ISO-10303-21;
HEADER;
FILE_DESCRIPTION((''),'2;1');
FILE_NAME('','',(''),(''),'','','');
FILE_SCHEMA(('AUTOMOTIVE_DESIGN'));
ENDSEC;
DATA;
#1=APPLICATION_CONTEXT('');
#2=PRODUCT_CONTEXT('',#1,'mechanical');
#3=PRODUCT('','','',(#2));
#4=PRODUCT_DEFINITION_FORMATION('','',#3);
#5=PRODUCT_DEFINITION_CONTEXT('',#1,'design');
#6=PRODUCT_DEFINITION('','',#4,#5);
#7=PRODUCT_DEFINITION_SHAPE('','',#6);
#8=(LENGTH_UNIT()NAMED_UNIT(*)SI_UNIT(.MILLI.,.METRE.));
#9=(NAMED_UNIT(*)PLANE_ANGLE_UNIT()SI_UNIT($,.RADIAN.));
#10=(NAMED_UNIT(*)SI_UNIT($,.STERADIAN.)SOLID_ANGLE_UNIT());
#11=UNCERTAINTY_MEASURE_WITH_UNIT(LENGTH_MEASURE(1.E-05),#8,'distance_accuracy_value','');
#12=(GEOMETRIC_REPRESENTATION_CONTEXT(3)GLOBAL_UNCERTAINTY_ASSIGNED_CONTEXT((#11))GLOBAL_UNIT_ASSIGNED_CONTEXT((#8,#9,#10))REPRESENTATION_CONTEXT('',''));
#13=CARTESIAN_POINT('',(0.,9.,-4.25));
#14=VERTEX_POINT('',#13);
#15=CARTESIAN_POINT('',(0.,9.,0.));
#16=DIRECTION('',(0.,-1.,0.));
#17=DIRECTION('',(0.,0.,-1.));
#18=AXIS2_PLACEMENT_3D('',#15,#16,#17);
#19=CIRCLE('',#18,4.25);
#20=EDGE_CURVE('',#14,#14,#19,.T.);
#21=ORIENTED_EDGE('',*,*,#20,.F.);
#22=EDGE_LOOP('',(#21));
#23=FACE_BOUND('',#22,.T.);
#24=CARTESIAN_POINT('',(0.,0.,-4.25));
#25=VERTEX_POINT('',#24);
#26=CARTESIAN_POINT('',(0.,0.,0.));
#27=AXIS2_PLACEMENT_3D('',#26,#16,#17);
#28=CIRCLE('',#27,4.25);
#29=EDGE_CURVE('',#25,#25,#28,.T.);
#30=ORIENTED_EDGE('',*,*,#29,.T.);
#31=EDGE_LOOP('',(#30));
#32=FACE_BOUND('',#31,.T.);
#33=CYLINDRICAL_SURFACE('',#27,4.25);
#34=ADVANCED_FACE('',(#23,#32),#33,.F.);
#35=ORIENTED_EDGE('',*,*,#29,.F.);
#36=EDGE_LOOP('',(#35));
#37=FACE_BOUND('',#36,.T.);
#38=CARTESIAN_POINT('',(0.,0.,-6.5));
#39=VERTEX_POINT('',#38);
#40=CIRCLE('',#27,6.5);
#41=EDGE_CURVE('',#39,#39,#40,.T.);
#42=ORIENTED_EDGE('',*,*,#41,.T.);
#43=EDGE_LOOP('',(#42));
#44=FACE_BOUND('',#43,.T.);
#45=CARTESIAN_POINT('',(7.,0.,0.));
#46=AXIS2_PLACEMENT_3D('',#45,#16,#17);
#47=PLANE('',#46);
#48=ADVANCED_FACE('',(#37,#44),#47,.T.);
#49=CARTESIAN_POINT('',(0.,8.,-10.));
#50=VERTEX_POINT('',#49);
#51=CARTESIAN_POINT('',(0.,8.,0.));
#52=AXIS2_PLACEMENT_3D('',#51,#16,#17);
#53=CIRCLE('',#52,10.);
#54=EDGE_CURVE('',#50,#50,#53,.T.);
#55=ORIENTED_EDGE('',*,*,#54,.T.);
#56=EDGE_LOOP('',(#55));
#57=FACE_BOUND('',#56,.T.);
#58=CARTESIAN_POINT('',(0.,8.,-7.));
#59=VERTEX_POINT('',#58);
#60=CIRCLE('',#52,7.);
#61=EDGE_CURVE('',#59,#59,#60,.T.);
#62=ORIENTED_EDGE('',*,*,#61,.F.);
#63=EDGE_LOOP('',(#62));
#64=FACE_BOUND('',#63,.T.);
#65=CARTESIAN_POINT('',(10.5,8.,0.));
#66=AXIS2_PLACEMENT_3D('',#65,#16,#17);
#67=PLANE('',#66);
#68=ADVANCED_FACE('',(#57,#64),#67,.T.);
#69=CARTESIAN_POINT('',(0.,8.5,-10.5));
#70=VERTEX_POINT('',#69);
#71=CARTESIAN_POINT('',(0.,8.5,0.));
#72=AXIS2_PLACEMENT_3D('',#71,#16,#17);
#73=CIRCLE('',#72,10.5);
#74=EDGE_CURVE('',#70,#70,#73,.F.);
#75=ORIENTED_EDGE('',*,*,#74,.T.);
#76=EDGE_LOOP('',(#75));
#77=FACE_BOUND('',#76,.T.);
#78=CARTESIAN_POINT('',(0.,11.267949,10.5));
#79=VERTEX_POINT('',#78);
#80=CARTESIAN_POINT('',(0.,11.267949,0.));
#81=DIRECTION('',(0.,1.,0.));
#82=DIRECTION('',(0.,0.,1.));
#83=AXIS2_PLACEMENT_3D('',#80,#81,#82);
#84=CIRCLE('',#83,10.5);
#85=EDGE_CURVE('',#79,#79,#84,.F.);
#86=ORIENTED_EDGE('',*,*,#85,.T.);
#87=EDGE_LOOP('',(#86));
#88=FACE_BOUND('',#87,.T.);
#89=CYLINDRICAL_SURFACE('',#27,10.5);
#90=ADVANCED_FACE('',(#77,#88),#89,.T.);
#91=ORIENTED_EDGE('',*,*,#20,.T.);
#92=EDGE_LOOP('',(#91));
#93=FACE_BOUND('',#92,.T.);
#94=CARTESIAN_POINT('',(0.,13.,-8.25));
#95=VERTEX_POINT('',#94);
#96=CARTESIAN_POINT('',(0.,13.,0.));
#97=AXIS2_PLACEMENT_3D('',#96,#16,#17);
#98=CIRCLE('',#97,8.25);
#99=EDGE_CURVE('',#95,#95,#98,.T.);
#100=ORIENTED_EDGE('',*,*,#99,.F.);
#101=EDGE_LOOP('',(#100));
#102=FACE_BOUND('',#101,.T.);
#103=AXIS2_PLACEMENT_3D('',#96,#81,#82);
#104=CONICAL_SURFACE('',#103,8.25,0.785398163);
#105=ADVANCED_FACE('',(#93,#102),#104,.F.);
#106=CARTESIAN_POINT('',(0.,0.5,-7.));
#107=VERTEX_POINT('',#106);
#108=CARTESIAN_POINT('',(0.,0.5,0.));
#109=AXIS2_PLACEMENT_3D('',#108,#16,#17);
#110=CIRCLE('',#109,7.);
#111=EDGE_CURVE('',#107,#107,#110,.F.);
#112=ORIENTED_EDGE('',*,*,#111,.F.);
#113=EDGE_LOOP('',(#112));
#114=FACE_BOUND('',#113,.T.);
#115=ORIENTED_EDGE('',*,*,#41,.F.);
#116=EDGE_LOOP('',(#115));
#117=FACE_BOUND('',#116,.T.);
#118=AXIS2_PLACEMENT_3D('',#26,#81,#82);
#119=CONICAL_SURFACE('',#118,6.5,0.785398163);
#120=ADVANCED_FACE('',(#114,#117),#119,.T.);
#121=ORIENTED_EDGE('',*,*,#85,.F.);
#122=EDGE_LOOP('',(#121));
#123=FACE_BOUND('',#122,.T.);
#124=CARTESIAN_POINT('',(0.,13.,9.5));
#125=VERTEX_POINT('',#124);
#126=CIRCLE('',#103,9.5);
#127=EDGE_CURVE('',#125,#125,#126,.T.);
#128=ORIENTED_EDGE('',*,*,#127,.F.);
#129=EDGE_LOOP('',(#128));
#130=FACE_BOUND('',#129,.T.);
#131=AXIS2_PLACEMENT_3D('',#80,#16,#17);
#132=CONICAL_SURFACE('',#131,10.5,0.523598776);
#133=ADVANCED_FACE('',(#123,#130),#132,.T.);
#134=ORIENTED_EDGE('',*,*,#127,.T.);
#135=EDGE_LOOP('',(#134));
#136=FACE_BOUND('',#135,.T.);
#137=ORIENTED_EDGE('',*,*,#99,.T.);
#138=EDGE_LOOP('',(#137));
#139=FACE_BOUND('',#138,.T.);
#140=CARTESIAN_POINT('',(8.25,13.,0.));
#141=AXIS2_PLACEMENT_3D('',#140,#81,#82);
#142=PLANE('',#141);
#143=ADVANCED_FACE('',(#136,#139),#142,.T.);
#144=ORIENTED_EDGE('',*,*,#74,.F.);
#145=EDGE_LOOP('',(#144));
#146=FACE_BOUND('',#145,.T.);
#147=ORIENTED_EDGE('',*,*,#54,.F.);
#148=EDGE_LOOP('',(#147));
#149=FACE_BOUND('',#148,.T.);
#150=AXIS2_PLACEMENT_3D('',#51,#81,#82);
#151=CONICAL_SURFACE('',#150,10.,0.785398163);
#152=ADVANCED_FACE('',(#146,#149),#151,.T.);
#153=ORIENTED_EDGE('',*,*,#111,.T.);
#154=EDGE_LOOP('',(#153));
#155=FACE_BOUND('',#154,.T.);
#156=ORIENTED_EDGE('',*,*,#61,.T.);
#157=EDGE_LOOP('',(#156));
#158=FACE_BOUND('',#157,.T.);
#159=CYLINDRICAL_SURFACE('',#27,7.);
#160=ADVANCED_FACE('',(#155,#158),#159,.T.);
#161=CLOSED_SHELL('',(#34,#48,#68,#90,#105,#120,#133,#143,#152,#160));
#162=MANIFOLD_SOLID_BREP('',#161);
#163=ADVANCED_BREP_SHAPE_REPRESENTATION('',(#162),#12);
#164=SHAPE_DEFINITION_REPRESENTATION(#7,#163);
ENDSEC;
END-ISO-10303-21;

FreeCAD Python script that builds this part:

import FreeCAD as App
import Part
import Sketcher

V = App.Vector
Q = App.Units.Quantity


def edges_at(feature, points):
    """Names of the edges that pass closest to the given points."""
    edges = feature.Shape.Edges
    near = lambda p: min(range(len(edges)), key=lambda i: edges[i].distToShape(Part.Vertex(*p))[0])
    return sorted({f"Edge{near(p) + 1}" for p in points})

doc = App.newDocument("Part")
body = doc.addObject("PartDesign::Body", "Body")

# Sketch on XY plane
sketch1 = body.newObject("Sketcher::SketchObject", "Sketch")
sketch1.AttachmentSupport = (doc.getObject("XY_Plane"), [""])
sketch1.MapMode = "FlatFace"
sketch1.addGeometry(Part.LineSegment(V(4.2, 9, 0), V(4.2, 0, 0)), False)
sketch1.addGeometry(Part.LineSegment(V(4.2, 0, 0), V(7, 0, 0)), False)
sketch1.addGeometry(Part.LineSegment(V(7, 0, 0), V(7, 8, 0)), False)
sketch1.addGeometry(Part.LineSegment(V(7, 8, 0), V(10.5, 8, 0)), False)
sketch1.addGeometry(Part.LineSegment(V(10.5, 8, 0), V(10.5, 13, 0)), False)
sketch1.addGeometry(Part.LineSegment(V(10.5, 13, 0), V(8.2, 13, 0)), False)
sketch1.addGeometry(Part.LineSegment(V(8.2, 13, 0), V(4.2, 9, 0)), False)
sketch1.addConstraint(Sketcher.Constraint("Coincident", 0, 2, 1, 1))
sketch1.addConstraint(Sketcher.Constraint("Coincident", 1, 2, 2, 1))
sketch1.addConstraint(Sketcher.Constraint("Coincident", 2, 2, 3, 1))
sketch1.addConstraint(Sketcher.Constraint("Coincident", 3, 2, 4, 1))
sketch1.addConstraint(Sketcher.Constraint("Coincident", 4, 2, 5, 1))
sketch1.addConstraint(Sketcher.Constraint("Coincident", 5, 2, 6, 1))
sketch1.addConstraint(Sketcher.Constraint("Coincident", 6, 2, 0, 1))
sketch1.addConstraint(Sketcher.Constraint("Vertical", 0))
sketch1.addConstraint(Sketcher.Constraint("Horizontal", 1))
sketch1.addConstraint(Sketcher.Constraint("Vertical", 2))
sketch1.addConstraint(Sketcher.Constraint("Horizontal", 3))
sketch1.addConstraint(Sketcher.Constraint("Vertical", 4))
sketch1.addConstraint(Sketcher.Constraint("Horizontal", 5))
sketch1.addConstraint(Sketcher.Constraint("PointOnObject", 0, 2, -1))
sketch1.addConstraint(Sketcher.Constraint("DistanceY", 0, 2, 0, 1, 9.0))
sketch1.addConstraint(Sketcher.Constraint("DistanceY", 2, 1, 2, 2, 8.0))
sketch1.addConstraint(Sketcher.Constraint("DistanceY", 4, 1, 4, 2, 5.0))
sketch1.addConstraint(Sketcher.Constraint("Angle", 6, Q("-135 deg")))
sketch1.addConstraint(Sketcher.Constraint("DistanceX", 3, 1, 3, 2, 3.5))
sketch1.addConstraint(Sketcher.Constraint("DistanceX", -1, 1, 1, 2, 7.0))
sketch1.addConstraint(Sketcher.Constraint("DistanceX", 1, 1, 1, 2, 2.75))
revolution = body.newObject("PartDesign::Revolution", "Revolution")
revolution.Profile = sketch1
revolution.ReferenceAxis = (sketch1, ["V_Axis"])
revolution.Angle = 360
doc.recompute()

chamfer = body.newObject("PartDesign::Chamfer", "Chamfer")
chamfer.Base = (revolution, edges_at(revolution, [(0, 13, 10.5)]))
chamfer.ChamferType = "Two distances"
chamfer.Size = 1
chamfer.Size2 = 1.732051
chamfer.FlipDirection = True
doc.recompute()

chamfer2 = body.newObject("PartDesign::Chamfer", "Chamfer001")
chamfer2.Base = (chamfer, edges_at(chamfer, [(0, 0, 7), (0, 8, 10.5)]))
chamfer2.Size = 0.5

doc.recompute()
